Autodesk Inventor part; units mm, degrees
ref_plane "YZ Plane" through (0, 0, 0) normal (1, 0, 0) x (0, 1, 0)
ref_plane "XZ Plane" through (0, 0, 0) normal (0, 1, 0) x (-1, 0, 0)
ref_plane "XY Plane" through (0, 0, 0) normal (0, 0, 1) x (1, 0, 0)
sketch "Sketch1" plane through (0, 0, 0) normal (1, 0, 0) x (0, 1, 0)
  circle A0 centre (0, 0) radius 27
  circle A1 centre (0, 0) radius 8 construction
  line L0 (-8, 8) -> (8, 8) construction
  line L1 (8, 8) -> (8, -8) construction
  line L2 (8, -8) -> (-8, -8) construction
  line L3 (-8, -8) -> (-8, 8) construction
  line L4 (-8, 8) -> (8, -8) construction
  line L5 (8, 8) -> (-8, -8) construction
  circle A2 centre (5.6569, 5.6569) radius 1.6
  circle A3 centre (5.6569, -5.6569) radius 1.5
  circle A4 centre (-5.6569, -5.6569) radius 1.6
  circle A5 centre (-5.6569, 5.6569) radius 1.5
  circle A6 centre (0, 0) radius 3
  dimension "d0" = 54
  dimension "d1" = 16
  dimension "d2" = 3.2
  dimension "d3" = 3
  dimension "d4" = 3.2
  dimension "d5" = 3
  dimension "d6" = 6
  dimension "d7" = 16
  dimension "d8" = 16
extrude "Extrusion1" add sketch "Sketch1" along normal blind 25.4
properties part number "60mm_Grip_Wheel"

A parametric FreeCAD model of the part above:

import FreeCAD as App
import Part
import Sketcher
Q = App.Units.Quantity

doc = App.newDocument("Part")
params = doc.addObject("Spreadsheet::Sheet", "Params")
for row, (alias, value) in enumerate([
    ("sketch1_diameter", "54 mm"),
    ("sketch1_diameter2", "3 mm"),
    ("sketch1_diameter3", "6 mm"),
    ("sketch1_diameter4", "3.2 mm"),
    ("pad1_length", "25.4 mm"),
], start=1):
    params.set(f"A{row}", alias)
    params.set(f"B{row}", "=" + value)
    params.setAlias(f"B{row}", alias)

body = doc.addObject("PartDesign::Body", "Body")

# Sketch on YZ plane
sketch1 = body.newObject("Sketcher::SketchObject", "Sketch")
sketch1.AttachmentSupport = (doc.getObject("YZ_Plane"), [""])
sketch1.MapMode = "FlatFace"
sketch1.addGeometry([
    Part.Circle(App.Vector(0, 0, 0), App.Vector(0, 0, 1), 27),  # 0
    Part.Circle(App.Vector(-5.7, -5.7, 0), App.Vector(0, 0, 1), 1.6),  # 1
    Part.Circle(App.Vector(5.7, -5.7, 0), App.Vector(0, 0, 1), 1.5),  # 2
    Part.Circle(App.Vector(-5.7, 5.7, 0), App.Vector(0, 0, 1), 1.5),  # 3
    Part.Circle(App.Vector(0, 0, 0), App.Vector(0, 0, 1), 3),  # 4
    Part.Circle(App.Vector(5.7, 5.7, 0), App.Vector(0, 0, 1), 1.6),  # 5
], False)
sketch1.addConstraint([
    Sketcher.Constraint("Coincident", 0, 3, -1, 1),
    Sketcher.Constraint("Coincident", 4, 3, -1, 1),
    Sketcher.Constraint("Equal", 2, 3),
    Sketcher.Constraint("Equal", 1, 5),
    Sketcher.Constraint("Symmetric", 2, 3, 3, 3, -1, 1),
    Sketcher.Constraint("Symmetric", 1, 3, 5, 3, -1, 1),
    Sketcher.Constraint("Symmetric", 1, 3, 2, 3, -2),
    Sketcher.Constraint("Diameter", 0, Q("54 mm")),
    Sketcher.Constraint("Diameter", 2, Q("3 mm")),
    Sketcher.Constraint("Diameter", 4, Q("6 mm")),
    Sketcher.Constraint("Diameter", 1, Q("3.2 mm")),
    Sketcher.Constraint("DistanceX", 1, 3, -1, 1, Q("5.657 mm")),
    Sketcher.Constraint("DistanceY", 1, 3, -1, 1, Q("5.657 mm")),
])
sketch1.setExpression("Constraints[7]", "Params.sketch1_diameter")
sketch1.setExpression("Constraints[8]", "Params.sketch1_diameter2")
sketch1.setExpression("Constraints[9]", "Params.sketch1_diameter3")
sketch1.setExpression("Constraints[10]", "Params.sketch1_diameter4")
pad1 = body.newObject("PartDesign::Pad", "Pad")
pad1.Profile = sketch1
pad1.setExpression("Length", "Params.pad1_length")

doc.recompute()
